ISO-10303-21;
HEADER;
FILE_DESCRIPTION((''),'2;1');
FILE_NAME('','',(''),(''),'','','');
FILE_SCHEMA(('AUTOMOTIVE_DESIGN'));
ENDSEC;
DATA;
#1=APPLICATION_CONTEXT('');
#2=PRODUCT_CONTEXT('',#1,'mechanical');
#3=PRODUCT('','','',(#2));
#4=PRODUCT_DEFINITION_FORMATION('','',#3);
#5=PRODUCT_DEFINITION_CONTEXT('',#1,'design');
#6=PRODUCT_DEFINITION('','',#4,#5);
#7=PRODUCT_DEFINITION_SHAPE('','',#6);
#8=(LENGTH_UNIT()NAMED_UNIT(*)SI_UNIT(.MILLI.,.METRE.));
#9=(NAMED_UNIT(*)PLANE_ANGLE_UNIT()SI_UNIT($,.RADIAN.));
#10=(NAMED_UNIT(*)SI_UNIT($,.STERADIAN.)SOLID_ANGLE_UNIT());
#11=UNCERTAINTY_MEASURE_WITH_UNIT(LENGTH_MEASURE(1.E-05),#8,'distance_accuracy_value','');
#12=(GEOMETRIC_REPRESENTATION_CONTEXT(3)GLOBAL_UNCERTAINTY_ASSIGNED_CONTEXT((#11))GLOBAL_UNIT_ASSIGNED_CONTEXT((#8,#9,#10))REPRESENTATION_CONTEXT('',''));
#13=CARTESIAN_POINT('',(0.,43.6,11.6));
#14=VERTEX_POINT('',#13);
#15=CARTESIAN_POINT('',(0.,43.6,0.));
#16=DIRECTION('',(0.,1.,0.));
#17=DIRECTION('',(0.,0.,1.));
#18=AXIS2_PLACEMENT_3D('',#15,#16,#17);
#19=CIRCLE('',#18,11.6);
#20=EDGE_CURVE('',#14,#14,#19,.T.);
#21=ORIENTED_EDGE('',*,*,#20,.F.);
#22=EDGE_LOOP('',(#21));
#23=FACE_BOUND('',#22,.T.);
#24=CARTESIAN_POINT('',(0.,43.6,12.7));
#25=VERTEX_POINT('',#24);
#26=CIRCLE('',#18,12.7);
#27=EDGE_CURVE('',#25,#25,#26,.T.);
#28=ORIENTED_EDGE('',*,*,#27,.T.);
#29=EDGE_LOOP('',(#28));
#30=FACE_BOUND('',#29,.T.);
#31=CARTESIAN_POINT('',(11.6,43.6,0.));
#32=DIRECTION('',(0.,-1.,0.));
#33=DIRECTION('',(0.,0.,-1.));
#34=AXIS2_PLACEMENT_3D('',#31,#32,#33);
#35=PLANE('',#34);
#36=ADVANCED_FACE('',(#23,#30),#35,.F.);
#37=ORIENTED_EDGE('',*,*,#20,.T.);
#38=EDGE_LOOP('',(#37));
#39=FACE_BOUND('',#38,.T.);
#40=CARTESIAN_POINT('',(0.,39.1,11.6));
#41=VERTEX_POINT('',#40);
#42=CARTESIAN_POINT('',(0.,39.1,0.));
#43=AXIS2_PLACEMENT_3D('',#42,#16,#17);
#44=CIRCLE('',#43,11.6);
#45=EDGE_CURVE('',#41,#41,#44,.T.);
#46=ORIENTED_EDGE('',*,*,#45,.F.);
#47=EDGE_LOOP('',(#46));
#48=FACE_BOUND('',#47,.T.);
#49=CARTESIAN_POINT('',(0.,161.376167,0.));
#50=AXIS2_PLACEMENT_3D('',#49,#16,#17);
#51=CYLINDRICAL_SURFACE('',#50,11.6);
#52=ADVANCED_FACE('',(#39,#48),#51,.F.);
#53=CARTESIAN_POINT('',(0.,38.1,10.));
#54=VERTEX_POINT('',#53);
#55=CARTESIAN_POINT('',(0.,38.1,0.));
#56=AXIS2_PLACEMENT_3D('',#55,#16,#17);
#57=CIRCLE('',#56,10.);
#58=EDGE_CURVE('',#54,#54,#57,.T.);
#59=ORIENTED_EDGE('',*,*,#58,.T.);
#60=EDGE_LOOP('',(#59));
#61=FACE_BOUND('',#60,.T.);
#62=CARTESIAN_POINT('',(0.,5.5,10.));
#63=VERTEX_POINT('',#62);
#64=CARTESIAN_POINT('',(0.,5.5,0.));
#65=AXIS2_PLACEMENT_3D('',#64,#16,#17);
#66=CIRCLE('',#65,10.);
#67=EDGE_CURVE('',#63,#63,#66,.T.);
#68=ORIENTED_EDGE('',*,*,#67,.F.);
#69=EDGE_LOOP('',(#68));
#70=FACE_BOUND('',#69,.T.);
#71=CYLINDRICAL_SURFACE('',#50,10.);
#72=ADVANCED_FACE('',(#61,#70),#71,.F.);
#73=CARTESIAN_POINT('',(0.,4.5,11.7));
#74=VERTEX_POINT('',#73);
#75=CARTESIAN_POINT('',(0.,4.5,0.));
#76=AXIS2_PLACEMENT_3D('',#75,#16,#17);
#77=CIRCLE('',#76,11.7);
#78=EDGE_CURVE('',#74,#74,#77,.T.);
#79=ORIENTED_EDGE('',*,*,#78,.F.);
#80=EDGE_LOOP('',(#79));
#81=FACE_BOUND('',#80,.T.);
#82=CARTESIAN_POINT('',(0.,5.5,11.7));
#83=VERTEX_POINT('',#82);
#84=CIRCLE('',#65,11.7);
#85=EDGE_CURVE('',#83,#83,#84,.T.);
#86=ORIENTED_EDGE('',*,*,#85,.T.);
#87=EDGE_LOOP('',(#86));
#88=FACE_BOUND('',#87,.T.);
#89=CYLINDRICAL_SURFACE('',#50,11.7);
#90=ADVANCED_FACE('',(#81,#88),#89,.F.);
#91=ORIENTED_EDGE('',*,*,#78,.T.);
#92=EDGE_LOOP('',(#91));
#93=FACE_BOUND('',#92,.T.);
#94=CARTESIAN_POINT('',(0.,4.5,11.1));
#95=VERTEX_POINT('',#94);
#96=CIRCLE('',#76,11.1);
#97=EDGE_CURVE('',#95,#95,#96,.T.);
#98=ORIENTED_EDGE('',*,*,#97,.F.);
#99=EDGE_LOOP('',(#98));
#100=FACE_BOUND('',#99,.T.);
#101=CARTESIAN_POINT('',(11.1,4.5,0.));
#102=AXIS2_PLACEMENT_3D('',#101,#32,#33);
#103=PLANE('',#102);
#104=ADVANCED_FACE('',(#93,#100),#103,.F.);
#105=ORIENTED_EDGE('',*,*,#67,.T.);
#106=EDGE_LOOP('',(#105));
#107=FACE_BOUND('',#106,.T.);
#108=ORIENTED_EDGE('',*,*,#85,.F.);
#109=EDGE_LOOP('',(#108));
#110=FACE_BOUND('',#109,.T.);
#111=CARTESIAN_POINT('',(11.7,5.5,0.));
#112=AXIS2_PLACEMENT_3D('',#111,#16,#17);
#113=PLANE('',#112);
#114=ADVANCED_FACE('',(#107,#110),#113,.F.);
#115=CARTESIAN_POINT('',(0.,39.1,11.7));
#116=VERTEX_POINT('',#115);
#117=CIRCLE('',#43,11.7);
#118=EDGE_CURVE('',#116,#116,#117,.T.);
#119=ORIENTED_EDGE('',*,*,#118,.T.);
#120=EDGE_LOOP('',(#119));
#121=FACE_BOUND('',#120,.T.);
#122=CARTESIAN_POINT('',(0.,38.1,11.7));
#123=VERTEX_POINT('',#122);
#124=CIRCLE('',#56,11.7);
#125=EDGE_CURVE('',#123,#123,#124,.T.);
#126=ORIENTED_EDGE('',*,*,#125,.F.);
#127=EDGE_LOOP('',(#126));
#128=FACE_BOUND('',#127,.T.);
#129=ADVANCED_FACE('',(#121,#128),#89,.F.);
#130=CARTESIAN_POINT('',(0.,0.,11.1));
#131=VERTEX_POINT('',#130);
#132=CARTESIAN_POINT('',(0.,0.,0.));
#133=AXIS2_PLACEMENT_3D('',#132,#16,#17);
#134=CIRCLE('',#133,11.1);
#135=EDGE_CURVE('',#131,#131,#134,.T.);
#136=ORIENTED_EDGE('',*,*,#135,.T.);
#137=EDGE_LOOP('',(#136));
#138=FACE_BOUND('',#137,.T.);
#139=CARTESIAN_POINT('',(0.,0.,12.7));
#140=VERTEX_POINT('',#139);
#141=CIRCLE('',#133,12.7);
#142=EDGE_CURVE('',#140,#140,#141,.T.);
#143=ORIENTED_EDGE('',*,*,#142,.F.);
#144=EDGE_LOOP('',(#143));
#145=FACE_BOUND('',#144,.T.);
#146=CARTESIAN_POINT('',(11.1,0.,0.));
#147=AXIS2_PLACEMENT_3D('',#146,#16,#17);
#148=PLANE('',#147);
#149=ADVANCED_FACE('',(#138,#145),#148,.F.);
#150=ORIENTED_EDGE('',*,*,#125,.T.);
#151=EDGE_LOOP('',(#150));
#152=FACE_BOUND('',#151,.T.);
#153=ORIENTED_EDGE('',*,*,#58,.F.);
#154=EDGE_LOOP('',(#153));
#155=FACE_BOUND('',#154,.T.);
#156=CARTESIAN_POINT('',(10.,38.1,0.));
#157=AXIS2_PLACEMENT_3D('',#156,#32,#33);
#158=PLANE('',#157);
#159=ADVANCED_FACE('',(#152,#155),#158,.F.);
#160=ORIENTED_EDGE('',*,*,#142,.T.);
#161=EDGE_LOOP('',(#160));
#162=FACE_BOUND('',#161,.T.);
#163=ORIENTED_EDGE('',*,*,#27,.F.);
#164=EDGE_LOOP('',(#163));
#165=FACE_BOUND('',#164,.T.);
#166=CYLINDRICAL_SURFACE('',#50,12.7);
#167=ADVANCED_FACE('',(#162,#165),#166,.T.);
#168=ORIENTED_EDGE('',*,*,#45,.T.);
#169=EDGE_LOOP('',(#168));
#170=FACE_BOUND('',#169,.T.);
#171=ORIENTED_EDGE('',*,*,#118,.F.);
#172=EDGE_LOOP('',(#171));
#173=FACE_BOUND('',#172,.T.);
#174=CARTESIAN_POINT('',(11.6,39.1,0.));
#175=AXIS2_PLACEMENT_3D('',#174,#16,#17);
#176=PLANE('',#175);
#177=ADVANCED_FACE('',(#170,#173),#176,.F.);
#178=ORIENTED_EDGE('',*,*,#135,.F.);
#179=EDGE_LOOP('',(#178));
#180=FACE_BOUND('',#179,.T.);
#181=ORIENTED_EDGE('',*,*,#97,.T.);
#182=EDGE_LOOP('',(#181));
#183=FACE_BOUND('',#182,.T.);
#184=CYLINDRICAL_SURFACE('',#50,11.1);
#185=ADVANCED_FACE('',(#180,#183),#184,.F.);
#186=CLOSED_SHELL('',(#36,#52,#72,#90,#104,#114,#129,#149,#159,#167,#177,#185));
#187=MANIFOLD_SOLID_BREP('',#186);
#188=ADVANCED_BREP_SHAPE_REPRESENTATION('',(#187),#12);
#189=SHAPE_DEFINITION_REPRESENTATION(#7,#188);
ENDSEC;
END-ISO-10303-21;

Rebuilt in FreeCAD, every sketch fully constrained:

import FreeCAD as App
import Part
import Sketcher
from FreeCAD import Vector
Q = App.Units.Quantity


def add_polygon(sketch, points):
    """Adds a closed chain of lines whose ends are joined by coincident constraints."""
    first, n = sketch.GeometryCount, len(points)
    for a, b in zip(points, points[1:] + points[:1]):
        sketch.addGeometry(Part.LineSegment(App.Vector(*a, 0), App.Vector(*b, 0)), False)
    for i in range(n):
        sketch.addConstraint(Sketcher.Constraint("Coincident", first + i, 2, first + (i + 1) % n, 1))

doc = App.newDocument("Part")
body = doc.addObject("PartDesign::Body", "Body")

# Sketch on XY plane
sketch1 = body.newObject("Sketcher::SketchObject", "Sketch")
sketch1.AttachmentSupport = (doc.getObject("XY_Plane"), [""])
sketch1.MapMode = "FlatFace"
add_polygon(sketch1, [(11.1, 4.5), (11.1, 0), (12.7, 0), (12.7, 43.6), (11.6, 43.6), (11.6, 39.1), (11.7, 39.1), (11.7, 38.1), (10, 38.1), (10, 5.5), (11.7, 5.5), (11.7, 4.5)])  # lines 0-11
sketch1.addConstraint([
    Sketcher.Constraint("Vertical", 0),
    Sketcher.Constraint("Horizontal", 1),
    Sketcher.Constraint("Vertical", 2),
    Sketcher.Constraint("Horizontal", 3),
    Sketcher.Constraint("Vertical", 4),
    Sketcher.Constraint("Horizontal", 5),
    Sketcher.Constraint("Vertical", 6),
    Sketcher.Constraint("Horizontal", 7),
    Sketcher.Constraint("Vertical", 8),
    Sketcher.Constraint("Horizontal", 9),
    Sketcher.Constraint("Vertical", 10),
    Sketcher.Constraint("Horizontal", 11),
    Sketcher.Constraint("PointOnObject", 0, 2, -1),
    Sketcher.Constraint("Vertical", 6, 2, 9, 2),
    Sketcher.Constraint("Equal", 0, 4),
    Sketcher.Constraint("Equal", 6, 10),
    Sketcher.Constraint("DistanceY", 6, 2, 6, 1, Q("1 mm")),
    Sketcher.Constraint("DistanceX", 1, 1, 1, 2, Q("1.6 mm")),
    Sketcher.Constraint("DistanceX", 3, 2, 3, 1, Q("1.1 mm")),
    Sketcher.Constraint("DistanceX", 5, 1, 5, 2, Q("0.1 mm")),
    Sketcher.Constraint("DistanceX", 7, 2, 7, 1, Q("1.7 mm")),
    Sketcher.Constraint("DistanceY", 0, 2, 0, 1, Q("4.5 mm")),
    Sketcher.Constraint("DistanceY", 2, 1, 2, 2, Q("43.6 mm")),
    Sketcher.Constraint("DistanceX", -1, 1, 7, 2, Q("10 mm")),
])
revolution = body.newObject("PartDesign::Revolution", "Revolution")
revolution.Profile = sketch1
revolution.ReferenceAxis = (sketch1, ["V_Axis"])
revolution.Angle = 360

doc.recompute()
